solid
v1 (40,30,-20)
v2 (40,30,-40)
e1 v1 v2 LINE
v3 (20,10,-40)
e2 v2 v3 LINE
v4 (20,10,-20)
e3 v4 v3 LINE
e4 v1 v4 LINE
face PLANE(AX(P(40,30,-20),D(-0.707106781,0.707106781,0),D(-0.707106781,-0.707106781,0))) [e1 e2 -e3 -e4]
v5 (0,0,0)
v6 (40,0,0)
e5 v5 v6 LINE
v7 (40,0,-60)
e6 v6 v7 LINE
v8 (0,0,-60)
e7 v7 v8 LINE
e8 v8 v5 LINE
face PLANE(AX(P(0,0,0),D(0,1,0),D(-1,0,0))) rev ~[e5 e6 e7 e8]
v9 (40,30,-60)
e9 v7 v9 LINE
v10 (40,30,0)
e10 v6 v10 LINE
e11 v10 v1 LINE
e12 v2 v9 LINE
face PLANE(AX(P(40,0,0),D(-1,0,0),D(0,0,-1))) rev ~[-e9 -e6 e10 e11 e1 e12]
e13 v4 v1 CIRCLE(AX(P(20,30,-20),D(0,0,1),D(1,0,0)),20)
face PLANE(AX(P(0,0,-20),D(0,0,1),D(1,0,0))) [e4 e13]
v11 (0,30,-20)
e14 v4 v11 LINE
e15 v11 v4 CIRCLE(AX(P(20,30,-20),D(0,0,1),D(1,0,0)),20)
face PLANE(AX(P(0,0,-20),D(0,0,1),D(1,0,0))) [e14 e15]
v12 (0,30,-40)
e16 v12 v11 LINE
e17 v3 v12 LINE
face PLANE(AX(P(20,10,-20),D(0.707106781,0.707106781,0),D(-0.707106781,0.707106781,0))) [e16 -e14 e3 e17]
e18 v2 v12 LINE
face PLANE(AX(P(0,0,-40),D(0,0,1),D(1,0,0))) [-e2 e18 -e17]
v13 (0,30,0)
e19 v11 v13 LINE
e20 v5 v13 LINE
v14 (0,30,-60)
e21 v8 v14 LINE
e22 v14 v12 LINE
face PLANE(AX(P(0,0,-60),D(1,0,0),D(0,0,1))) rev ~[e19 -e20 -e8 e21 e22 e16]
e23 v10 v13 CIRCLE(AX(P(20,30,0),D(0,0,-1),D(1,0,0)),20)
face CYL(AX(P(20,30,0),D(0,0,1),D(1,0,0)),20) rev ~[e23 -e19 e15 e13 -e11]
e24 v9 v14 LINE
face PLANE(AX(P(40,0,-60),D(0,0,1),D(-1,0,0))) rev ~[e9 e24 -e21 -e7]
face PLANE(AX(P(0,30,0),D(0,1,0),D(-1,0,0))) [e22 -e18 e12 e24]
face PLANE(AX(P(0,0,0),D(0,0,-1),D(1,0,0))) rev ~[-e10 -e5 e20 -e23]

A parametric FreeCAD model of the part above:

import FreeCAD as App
import Part
import Sketcher

V = App.Vector

doc = App.newDocument("Part")
params = doc.addObject("Spreadsheet::Sheet", "Params")
for row, (alias, value) in enumerate([
    ("sketch1_width", "40 mm"),
    ("sketch1_height", "60 mm"),
    ("pad1_length", "30 mm"),
    ("sketch2_diameter", "40 mm"),
    ("pocket1_length", "20 mm"),
    ("sketch3_width", "40 mm"),
    ("pocket2_length", "20 mm"),
], start=1):
    params.set(f"A{row}", alias)
    params.set(f"B{row}", "=" + value)
    params.setAlias(f"B{row}", alias)

body = doc.addObject("PartDesign::Body", "Body")

# Sketch on XZ plane
sketch1 = body.newObject("Sketcher::SketchObject", "Sketch")
sketch1.AttachmentSupport = (doc.getObject("XZ_Plane"), [""])
sketch1.MapMode = "FlatFace"
sketch1.addGeometry([
    Part.LineSegment(V(0, -60, 0), V(0, 0, 0)),
    Part.LineSegment(V(0, 0, 0), V(40, 0, 0)),
    Part.LineSegment(V(40, 0, 0), V(40, -60, 0)),
    Part.LineSegment(V(40, -60, 0), V(0, -60, 0)),
], False)
sketch1.addConstraint([
    Sketcher.Constraint("Coincident", 0, 2, 1, 1),
    Sketcher.Constraint("Coincident", 1, 2, 2, 1),
    Sketcher.Constraint("Coincident", 2, 2, 3, 1),
    Sketcher.Constraint("Coincident", 3, 2, 0, 1),
    Sketcher.Constraint("Vertical", 0),
    Sketcher.Constraint("Horizontal", 1),
    Sketcher.Constraint("Vertical", 2),
    Sketcher.Constraint("Horizontal", 3),
    Sketcher.Constraint("Coincident", 0, 2, -1, 1),
    Sketcher.Constraint("DistanceX", 1, 1, 1, 2, 40.0),
    Sketcher.Constraint("DistanceY", 0, 1, 0, 2, 60.0),
])
sketch1.setExpression("Constraints[9]", "Params.sketch1_width")
sketch1.setExpression("Constraints[10]", "Params.sketch1_height")
pad1 = body.newObject("PartDesign::Pad", "Pad")
pad1.Profile = sketch1
pad1.setExpression("Length", "Params.pad1_length")
pad1.Reversed = True

# Sketch on XY plane
sketch2 = body.newObject("Sketcher::SketchObject", "Sketch001")
sketch2.AttachmentSupport = (doc.getObject("XY_Plane"), [""])
sketch2.MapMode = "FlatFace"
sketch2.addGeometry(Part.Circle(V(20, 30, 0), V(0, 0, 1), 20), False)
sketch2.addConstraint([
    Sketcher.Constraint("Diameter", 0, 40.0),
    Sketcher.Constraint("DistanceX", -1, 1, 0, 3, 20.0),
    Sketcher.Constraint("DistanceY", -1, 1, 0, 3, 30.0),
])
sketch2.setExpression("Constraints[0]", "Params.sketch2_diameter")
pocket1 = body.newObject("PartDesign::Pocket", "Pocket")
pocket1.Profile = sketch2
pocket1.setExpression("Length", "Params.pocket1_length")

# Sketch on XY plane
sketch3 = body.newObject("Sketcher::SketchObject", "Sketch002")
sketch3.AttachmentSupport = (doc.getObject("XY_Plane"), [""])
sketch3.MapMode = "FlatFace"
sketch3.AttachmentOffset = App.Placement(V(0, 0, -20), App.Rotation())
sketch3.addGeometry([
    Part.LineSegment(V(40, 30, 0), V(0, 30, 0)),
    Part.LineSegment(V(0, 30, 0), V(20, 10, 0)),
    Part.LineSegment(V(20, 10, 0), V(40, 30, 0)),
], False)
sketch3.addConstraint([
    Sketcher.Constraint("Coincident", 0, 2, 1, 1),
    Sketcher.Constraint("Coincident", 1, 2, 2, 1),
    Sketcher.Constraint("Coincident", 2, 2, 0, 1),
    Sketcher.Constraint("Horizontal", 0),
    Sketcher.Constraint("PointOnObject", 0, 2, -2),
    Sketcher.Constraint("Perpendicular", 1, 2),
    Sketcher.Constraint("Equal", 1, 2),
    Sketcher.Constraint("DistanceX", 0, 2, 0, 1, 40.0),
    Sketcher.Constraint("DistanceY", -1, 1, 0, 2, 30.0),
])
sketch3.setExpression("Constraints[7]", "Params.sketch3_width")
pocket2 = body.newObject("PartDesign::Pocket", "Pocket001")
pocket2.Profile = sketch3
pocket2.setExpression("Length", "Params.pocket2_length")

doc.recompute()
